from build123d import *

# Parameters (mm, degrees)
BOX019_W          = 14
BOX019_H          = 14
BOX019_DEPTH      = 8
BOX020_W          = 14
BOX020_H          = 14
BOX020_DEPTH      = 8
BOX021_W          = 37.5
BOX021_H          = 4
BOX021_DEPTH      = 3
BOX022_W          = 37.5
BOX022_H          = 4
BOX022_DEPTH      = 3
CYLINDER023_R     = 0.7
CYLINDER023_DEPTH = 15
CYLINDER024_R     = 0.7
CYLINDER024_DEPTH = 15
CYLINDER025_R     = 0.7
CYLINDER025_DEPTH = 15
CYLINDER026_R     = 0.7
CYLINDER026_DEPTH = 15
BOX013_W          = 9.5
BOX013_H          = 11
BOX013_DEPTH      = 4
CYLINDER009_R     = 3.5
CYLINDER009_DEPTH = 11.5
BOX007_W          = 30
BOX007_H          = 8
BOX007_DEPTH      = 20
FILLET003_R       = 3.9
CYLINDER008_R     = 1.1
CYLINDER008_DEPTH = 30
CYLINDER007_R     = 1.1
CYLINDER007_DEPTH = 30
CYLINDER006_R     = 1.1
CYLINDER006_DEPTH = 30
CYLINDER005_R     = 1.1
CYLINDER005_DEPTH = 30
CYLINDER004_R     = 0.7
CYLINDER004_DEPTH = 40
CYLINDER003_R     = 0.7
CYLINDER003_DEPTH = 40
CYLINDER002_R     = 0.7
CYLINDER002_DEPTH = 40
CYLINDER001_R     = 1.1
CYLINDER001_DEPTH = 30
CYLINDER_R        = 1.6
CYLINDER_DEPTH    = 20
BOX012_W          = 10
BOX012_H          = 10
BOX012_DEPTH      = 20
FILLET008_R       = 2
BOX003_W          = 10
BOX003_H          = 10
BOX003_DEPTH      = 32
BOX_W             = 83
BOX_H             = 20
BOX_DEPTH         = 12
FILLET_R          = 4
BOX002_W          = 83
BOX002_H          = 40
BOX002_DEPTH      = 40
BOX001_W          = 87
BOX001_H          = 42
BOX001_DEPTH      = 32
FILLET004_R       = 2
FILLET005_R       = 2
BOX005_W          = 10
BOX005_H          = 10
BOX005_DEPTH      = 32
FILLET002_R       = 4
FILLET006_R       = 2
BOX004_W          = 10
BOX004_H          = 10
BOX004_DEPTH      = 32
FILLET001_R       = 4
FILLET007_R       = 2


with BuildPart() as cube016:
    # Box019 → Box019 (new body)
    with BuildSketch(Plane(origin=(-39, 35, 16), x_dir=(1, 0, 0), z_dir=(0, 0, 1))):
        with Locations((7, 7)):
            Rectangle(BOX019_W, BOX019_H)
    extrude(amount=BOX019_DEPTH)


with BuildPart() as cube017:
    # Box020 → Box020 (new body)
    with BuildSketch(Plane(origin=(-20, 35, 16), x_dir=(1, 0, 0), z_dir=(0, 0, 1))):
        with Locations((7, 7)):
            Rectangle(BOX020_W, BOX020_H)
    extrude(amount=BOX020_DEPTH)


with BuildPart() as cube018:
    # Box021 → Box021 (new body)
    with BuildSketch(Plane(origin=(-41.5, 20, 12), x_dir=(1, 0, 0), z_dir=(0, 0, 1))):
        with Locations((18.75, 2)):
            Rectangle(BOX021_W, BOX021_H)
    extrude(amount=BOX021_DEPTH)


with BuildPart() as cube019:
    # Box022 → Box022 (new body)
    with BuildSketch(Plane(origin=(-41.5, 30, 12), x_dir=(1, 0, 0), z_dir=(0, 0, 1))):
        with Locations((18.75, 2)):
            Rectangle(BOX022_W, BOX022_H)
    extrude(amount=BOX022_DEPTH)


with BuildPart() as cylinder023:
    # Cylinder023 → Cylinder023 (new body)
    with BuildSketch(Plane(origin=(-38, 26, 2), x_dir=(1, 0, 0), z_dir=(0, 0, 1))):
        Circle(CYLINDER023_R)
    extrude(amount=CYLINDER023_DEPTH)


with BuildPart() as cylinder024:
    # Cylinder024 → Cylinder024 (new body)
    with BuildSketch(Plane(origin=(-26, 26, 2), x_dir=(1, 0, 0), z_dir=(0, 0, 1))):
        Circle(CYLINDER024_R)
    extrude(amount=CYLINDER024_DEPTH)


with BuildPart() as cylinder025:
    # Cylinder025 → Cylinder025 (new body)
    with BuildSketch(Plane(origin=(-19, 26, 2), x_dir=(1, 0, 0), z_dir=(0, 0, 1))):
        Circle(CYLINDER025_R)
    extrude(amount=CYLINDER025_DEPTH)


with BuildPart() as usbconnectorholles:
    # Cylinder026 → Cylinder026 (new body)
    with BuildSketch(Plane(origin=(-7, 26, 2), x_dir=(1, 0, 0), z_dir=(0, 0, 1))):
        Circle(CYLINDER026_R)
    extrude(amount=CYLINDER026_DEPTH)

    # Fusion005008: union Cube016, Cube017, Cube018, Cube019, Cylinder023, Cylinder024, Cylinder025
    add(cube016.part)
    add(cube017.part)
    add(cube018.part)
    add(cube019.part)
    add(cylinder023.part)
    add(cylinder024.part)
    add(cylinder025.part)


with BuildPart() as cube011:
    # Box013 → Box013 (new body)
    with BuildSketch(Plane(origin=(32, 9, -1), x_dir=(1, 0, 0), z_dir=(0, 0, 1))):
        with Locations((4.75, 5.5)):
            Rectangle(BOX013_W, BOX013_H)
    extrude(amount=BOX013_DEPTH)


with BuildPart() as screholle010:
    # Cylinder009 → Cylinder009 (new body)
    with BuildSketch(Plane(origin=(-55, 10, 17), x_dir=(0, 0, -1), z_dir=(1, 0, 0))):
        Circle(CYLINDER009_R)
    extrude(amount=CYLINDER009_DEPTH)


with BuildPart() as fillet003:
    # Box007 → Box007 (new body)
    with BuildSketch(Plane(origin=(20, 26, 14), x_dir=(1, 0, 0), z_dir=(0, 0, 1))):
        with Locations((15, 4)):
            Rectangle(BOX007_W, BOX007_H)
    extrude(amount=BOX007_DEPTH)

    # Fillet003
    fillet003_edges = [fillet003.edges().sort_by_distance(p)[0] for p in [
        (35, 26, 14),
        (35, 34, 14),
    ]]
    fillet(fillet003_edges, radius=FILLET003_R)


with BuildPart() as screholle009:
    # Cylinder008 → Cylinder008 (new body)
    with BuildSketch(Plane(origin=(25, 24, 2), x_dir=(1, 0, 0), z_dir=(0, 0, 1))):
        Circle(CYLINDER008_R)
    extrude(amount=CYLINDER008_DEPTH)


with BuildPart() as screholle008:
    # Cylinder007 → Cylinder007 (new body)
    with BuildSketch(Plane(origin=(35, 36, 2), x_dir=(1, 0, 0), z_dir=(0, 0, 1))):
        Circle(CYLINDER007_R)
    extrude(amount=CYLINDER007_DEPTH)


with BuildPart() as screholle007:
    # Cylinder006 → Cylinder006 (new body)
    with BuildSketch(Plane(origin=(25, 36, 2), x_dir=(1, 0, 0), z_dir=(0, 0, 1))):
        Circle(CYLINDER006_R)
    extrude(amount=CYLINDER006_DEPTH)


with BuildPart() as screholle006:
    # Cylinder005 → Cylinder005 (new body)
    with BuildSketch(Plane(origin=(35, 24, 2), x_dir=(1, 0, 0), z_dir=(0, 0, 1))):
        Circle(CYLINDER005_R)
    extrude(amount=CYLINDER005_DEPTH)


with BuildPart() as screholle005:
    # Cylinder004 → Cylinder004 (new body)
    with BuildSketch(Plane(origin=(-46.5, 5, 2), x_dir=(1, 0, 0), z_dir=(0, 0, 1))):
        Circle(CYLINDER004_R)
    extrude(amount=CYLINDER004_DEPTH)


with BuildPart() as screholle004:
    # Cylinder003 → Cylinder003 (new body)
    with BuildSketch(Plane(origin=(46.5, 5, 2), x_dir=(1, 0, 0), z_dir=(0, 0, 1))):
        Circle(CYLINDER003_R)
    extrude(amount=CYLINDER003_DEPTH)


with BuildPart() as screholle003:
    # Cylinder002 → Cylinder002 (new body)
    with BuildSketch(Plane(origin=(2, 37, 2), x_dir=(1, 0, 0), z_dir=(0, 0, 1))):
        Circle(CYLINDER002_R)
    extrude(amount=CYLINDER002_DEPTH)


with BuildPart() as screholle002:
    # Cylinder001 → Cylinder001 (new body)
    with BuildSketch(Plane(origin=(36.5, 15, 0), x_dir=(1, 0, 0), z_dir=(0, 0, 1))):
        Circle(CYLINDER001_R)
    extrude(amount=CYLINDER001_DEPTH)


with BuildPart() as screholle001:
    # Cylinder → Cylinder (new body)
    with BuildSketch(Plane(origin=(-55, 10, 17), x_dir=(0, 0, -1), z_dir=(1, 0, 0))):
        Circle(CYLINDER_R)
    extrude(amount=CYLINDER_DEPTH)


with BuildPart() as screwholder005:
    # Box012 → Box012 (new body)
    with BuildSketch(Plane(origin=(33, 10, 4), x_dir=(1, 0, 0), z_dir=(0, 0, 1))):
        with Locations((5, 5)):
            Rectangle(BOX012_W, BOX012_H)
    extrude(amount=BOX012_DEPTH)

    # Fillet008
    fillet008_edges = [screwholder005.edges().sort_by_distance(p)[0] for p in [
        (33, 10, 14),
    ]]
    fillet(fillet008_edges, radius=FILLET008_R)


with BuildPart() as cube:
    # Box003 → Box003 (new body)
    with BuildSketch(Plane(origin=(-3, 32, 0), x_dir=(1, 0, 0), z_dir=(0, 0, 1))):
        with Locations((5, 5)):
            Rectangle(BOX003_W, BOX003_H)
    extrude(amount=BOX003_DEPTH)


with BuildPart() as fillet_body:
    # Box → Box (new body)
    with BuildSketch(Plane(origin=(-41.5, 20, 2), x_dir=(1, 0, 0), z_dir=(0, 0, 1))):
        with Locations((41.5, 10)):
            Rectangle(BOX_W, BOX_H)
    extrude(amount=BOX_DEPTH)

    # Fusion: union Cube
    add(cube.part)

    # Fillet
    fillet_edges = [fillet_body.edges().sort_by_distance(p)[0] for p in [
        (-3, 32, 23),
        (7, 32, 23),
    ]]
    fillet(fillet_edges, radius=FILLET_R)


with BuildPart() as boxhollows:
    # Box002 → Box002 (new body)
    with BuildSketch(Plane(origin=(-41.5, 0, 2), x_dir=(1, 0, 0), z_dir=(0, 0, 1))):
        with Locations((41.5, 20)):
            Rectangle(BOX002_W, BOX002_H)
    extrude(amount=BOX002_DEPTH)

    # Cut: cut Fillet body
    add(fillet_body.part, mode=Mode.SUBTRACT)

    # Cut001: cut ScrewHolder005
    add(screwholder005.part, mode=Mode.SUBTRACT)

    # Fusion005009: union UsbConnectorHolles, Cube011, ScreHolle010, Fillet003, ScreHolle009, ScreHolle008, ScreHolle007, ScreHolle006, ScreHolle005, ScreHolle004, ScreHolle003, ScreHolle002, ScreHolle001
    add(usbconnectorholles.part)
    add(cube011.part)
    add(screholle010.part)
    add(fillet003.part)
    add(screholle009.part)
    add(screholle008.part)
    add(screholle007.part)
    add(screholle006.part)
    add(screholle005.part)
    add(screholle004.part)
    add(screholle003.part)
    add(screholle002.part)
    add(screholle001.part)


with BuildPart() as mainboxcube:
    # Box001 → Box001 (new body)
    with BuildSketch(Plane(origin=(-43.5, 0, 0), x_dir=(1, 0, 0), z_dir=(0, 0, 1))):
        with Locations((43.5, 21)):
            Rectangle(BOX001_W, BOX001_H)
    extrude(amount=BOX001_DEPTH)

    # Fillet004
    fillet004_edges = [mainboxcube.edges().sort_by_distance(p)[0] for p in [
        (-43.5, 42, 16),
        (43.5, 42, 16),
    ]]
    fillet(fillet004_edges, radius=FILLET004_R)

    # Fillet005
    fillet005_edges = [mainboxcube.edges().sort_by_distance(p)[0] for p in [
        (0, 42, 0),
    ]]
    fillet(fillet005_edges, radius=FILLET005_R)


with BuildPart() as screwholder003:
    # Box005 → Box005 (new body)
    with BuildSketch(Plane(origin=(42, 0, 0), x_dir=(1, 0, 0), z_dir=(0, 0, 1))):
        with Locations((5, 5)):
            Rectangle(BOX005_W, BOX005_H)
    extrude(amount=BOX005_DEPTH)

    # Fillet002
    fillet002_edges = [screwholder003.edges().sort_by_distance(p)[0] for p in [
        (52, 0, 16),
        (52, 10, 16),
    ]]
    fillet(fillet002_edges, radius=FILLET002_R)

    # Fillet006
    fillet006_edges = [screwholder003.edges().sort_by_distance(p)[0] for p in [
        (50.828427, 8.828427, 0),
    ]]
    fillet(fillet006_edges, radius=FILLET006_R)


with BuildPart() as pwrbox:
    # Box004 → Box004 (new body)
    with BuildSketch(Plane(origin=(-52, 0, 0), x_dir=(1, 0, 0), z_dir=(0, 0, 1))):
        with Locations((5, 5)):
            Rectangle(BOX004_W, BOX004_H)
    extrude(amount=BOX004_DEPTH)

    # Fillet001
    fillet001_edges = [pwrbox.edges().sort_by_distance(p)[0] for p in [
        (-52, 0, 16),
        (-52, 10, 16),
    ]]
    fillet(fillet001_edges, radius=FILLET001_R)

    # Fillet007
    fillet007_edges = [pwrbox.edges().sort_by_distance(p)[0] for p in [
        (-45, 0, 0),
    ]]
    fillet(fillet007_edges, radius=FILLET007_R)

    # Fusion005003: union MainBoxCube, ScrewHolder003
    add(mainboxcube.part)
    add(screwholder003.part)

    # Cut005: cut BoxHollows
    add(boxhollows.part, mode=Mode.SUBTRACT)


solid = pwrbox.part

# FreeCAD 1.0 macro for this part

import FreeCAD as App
import Part
import Sketcher
from FreeCAD import Vector
Q = App.Units.Quantity


def edges_at(feature, points):
    """Names of the edges that pass closest to the given points."""
    edges = feature.Shape.Edges
    near = lambda p: min(range(len(edges)), key=lambda i: edges[i].distToShape(Part.Vertex(*p))[0])
    return sorted({f"Edge{near(p) + 1}" for p in points})


def add_polygon(sketch, points):
    """Adds a closed chain of lines whose ends are joined by coincident constraints."""
    first, n = sketch.GeometryCount, len(points)
    for a, b in zip(points, points[1:] + points[:1]):
        sketch.addGeometry(Part.LineSegment(App.Vector(*a, 0), App.Vector(*b, 0)), False)
    for i in range(n):
        sketch.addConstraint(Sketcher.Constraint("Coincident", first + i, 2, first + (i + 1) % n, 1))

doc = App.newDocument("Part")
body = doc.addObject("PartDesign::Body", "Body")

# Sketch on XY plane
sketch1 = body.newObject("Sketcher::SketchObject", "Sketch")
sketch1.AttachmentSupport = (doc.getObject("XY_Plane"), [""])
sketch1.MapMode = "FlatFace"
sketch1.AttachmentOffset = App.Placement(Vector(0, 0, 16), App.Rotation())
add_polygon(sketch1, [(-39, 49), (-39, 35), (-25, 35), (-25, 49)])  # lines 0-3
sketch1.addConstraint([
    Sketcher.Constraint("Vertical", 0),
    Sketcher.Constraint("Horizontal", 1),
    Sketcher.Constraint("Vertical", 2),
    Sketcher.Constraint("Horizontal", 3),
    Sketcher.Constraint("Equal", 3, 0),
    Sketcher.Constraint("DistanceX", 1, 1, 1, 2, Q("14 mm")),
    Sketcher.Constraint("DistanceX", 0, 2, -1, 1, Q("39 mm")),
    Sketcher.Constraint("DistanceY", -1, 1, 0, 2, Q("35 mm")),
])
pad1 = body.newObject("PartDesign::Pad", "Pad")
pad1.Profile = sketch1
pad1.Length = 8
body2 = doc.addObject("PartDesign::Body", "Body001")

# Sketch on XY plane
sketch2 = body2.newObject("Sketcher::SketchObject", "Sketch001")
sketch2.AttachmentSupport = (doc.getObject("XY_Plane001"), [""])
sketch2.MapMode = "FlatFace"
sketch2.AttachmentOffset = App.Placement(Vector(0, 0, 16), App.Rotation())
add_polygon(sketch2, [(-20, 49), (-20, 35), (-6, 35), (-6, 49)])  # lines 0-3
sketch2.addConstraint([
    Sketcher.Constraint("Vertical", 0),
    Sketcher.Constraint("Horizontal", 1),
    Sketcher.Constraint("Vertical", 2),
    Sketcher.Constraint("Horizontal", 3),
    Sketcher.Constraint("Equal", 3, 0),
    Sketcher.Constraint("DistanceX", 1, 1, 1, 2, Q("14 mm")),
    Sketcher.Constraint("DistanceX", 0, 2, -1, 1, Q("20 mm")),
    Sketcher.Constraint("DistanceY", -1, 1, 0, 2, Q("35 mm")),
])
pad2 = body2.newObject("PartDesign::Pad", "Pad001")
pad2.Profile = sketch2
pad2.Length = 8
body3 = doc.addObject("PartDesign::Body", "Body002")

# Sketch on XY plane
sketch3 = body3.newObject("Sketcher::SketchObject", "Sketch002")
sketch3.AttachmentSupport = (doc.getObject("XY_Plane002"), [""])
sketch3.MapMode = "FlatFace"
sketch3.AttachmentOffset = App.Placement(Vector(0, 0, 12), App.Rotation())
add_polygon(sketch3, [(-41.5, 24), (-41.5, 20), (-4, 20), (-4, 24)])  # lines 0-3
sketch3.addConstraint([
    Sketcher.Constraint("Vertical", 0),
    Sketcher.Constraint("Horizontal", 1),
    Sketcher.Constraint("Vertical", 2),
    Sketcher.Constraint("Horizontal", 3),
    Sketcher.Constraint("DistanceY", 0, 2, 0, 1, Q("4 mm")),
    Sketcher.Constraint("DistanceX", 1, 1, 1, 2, Q("37.5 mm")),
    Sketcher.Constraint("DistanceY", -1, 1, 0, 2, Q("20 mm")),
    Sketcher.Constraint("DistanceX", 1, 2, -1, 1, Q("4 mm")),
])
pad3 = body3.newObject("PartDesign::Pad", "Pad002")
pad3.Profile = sketch3
pad3.Length = 3
body4 = doc.addObject("PartDesign::Body", "Body003")

# Sketch on XY plane
sketch4 = body4.newObject("Sketcher::SketchObject", "Sketch003")
sketch4.AttachmentSupport = (doc.getObject("XY_Plane003"), [""])
sketch4.MapMode = "FlatFace"
sketch4.AttachmentOffset = App.Placement(Vector(0, 0, 12), App.Rotation())
add_polygon(sketch4, [(-41.5, 34), (-41.5, 30), (-4, 30), (-4, 34)])  # lines 0-3
sketch4.addConstraint([
    Sketcher.Constraint("Vertical", 0),
    Sketcher.Constraint("Horizontal", 1),
    Sketcher.Constraint("Vertical", 2),
    Sketcher.Constraint("Horizontal", 3),
    Sketcher.Constraint("DistanceY", 0, 2, 0, 1, Q("4 mm")),
    Sketcher.Constraint("DistanceX", 1, 1, 1, 2, Q("37.5 mm")),
    Sketcher.Constraint("DistanceY", -1, 1, 0, 2, Q("30 mm")),
    Sketcher.Constraint("DistanceX", 1, 2, -1, 1, Q("4 mm")),
])
pad4 = body4.newObject("PartDesign::Pad", "Pad003")
pad4.Profile = sketch4
pad4.Length = 3
body5 = doc.addObject("PartDesign::Body", "Body004")

# Sketch on XY plane
sketch5 = body5.newObject("Sketcher::SketchObject", "Sketch004")
sketch5.AttachmentSupport = (doc.getObject("XY_Plane004"), [""])
sketch5.MapMode = "FlatFace"
sketch5.AttachmentOffset = App.Placement(Vector(0, 0, 2), App.Rotation())
sketch5.addGeometry(Part.Circle(Vector(-38, 26, 0), Vector(0, 0, 1), 0.7), False)
sketch5.addConstraint([
    Sketcher.Constraint("Diameter", 0, Q("1.4 mm")),
    Sketcher.Constraint("DistanceX", 0, 3, -1, 1, Q("38 mm")),
    Sketcher.Constraint("DistanceY", -1, 1, 0, 3, Q("26 mm")),
])
pad5 = body5.newObject("PartDesign::Pad", "Pad004")
pad5.Profile = sketch5
pad5.Length = 15
body6 = doc.addObject("PartDesign::Body", "Body005")

# Sketch on XY plane
sketch6 = body6.newObject("Sketcher::SketchObject", "Sketch005")
sketch6.AttachmentSupport = (doc.getObject("XY_Plane005"), [""])
sketch6.MapMode = "FlatFace"
sketch6.AttachmentOffset = App.Placement(Vector(0, 0, 2), App.Rotation())
sketch6.addGeometry(Part.Circle(Vector(-26, 26, 0), Vector(0, 0, 1), 0.7), False)
sketch6.addConstraint([
    Sketcher.Constraint("Diameter", 0, Q("1.4 mm")),
    Sketcher.Constraint("DistanceX", 0, 3, -1, 1, Q("26 mm")),
    Sketcher.Constraint("DistanceY", -1, 1, 0, 3, Q("26 mm")),
])
pad6 = body6.newObject("PartDesign::Pad", "Pad005")
pad6.Profile = sketch6
pad6.Length = 15
body7 = doc.addObject("PartDesign::Body", "Body006")

# Sketch on XY plane
sketch7 = body7.newObject("Sketcher::SketchObject", "Sketch006")
sketch7.AttachmentSupport = (doc.getObject("XY_Plane006"), [""])
sketch7.MapMode = "FlatFace"
sketch7.AttachmentOffset = App.Placement(Vector(0, 0, 2), App.Rotation())
sketch7.addGeometry(Part.Circle(Vector(-19, 26, 0), Vector(0, 0, 1), 0.7), False)
sketch7.addConstraint([
    Sketcher.Constraint("Diameter", 0, Q("1.4 mm")),
    Sketcher.Constraint("DistanceX", 0, 3, -1, 1, Q("19 mm")),
    Sketcher.Constraint("DistanceY", -1, 1, 0, 3, Q("26 mm")),
])
pad7 = body7.newObject("PartDesign::Pad", "Pad006")
pad7.Profile = sketch7
pad7.Length = 15
body8 = doc.addObject("PartDesign::Body", "Body007")
body8.AllowCompound = True

# Sketch on XY plane
sketch8 = body8.newObject("Sketcher::SketchObject", "Sketch007")
sketch8.AttachmentSupport = (doc.getObject("XY_Plane007"), [""])
sketch8.MapMode = "FlatFace"
sketch8.AttachmentOffset = App.Placement(Vector(0, 0, 2), App.Rotation())
sketch8.addGeometry(Part.Circle(Vector(-7, 26, 0), Vector(0, 0, 1), 0.7), False)
sketch8.addConstraint([
    Sketcher.Constraint("Diameter", 0, Q("1.4 mm")),
    Sketcher.Constraint("DistanceX", 0, 3, -1, 1, Q("7 mm")),
    Sketcher.Constraint("DistanceY", -1, 1, 0, 3, Q("26 mm")),
])
pad8 = body8.newObject("PartDesign::Pad", "Pad007")
pad8.Profile = sketch8
pad8.Length = 15
doc.recompute()

boolean = body8.newObject("PartDesign::Boolean", "Boolean")
boolean.Type = "Fuse"
boolean.addObjects([body])
doc.recompute()

boolean2 = body8.newObject("PartDesign::Boolean", "Boolean001")
boolean2.Type = "Fuse"
boolean2.addObjects([body2])
doc.recompute()

boolean3 = body8.newObject("PartDesign::Boolean", "Boolean002")
boolean3.Type = "Fuse"
boolean3.addObjects([body3])
doc.recompute()

boolean4 = body8.newObject("PartDesign::Boolean", "Boolean003")
boolean4.Type = "Fuse"
boolean4.addObjects([body4])
doc.recompute()

boolean5 = body8.newObject("PartDesign::Boolean", "Boolean004")
boolean5.Type = "Fuse"
boolean5.addObjects([body5])
doc.recompute()

boolean6 = body8.newObject("PartDesign::Boolean", "Boolean005")
boolean6.Type = "Fuse"
boolean6.addObjects([body6])
doc.recompute()

boolean7 = body8.newObject("PartDesign::Boolean", "Boolean006")
boolean7.Type = "Fuse"
boolean7.addObjects([body7])
body9 = doc.addObject("PartDesign::Body", "Body008")

# Sketch on XY plane
sketch9 = body9.newObject("Sketcher::SketchObject", "Sketch008")
sketch9.AttachmentSupport = (doc.getObject("XY_Plane008"), [""])
sketch9.MapMode = "FlatFace"
sketch9.AttachmentOffset = App.Placement(Vector(0, 0, -1), App.Rotation())
add_polygon(sketch9, [(32, 20), (32, 9), (42, 9), (42, 20)])  # lines 0-3
sketch9.addConstraint([
    Sketcher.Constraint("Vertical", 0),
    Sketcher.Constraint("Horizontal", 1),
    Sketcher.Constraint("Vertical", 2),
    Sketcher.Constraint("Horizontal", 3),
    Sketcher.Constraint("DistanceY", 0, 2, 0, 1, Q("11 mm")),
    Sketcher.Constraint("DistanceX", 1, 1, 1, 2, Q("9.5 mm")),
    Sketcher.Constraint("DistanceX", -1, 1, 0, 2, Q("32 mm")),
    Sketcher.Constraint("DistanceY", -1, 1, 0, 2, Q("9 mm")),
])
pad9 = body9.newObject("PartDesign::Pad", "Pad008")
pad9.Profile = sketch9
pad9.Length = 4
body10 = doc.addObject("PartDesign::Body", "Body009")

# Sketch on YZ plane
sketch10 = body10.newObject("Sketcher::SketchObject", "Sketch009")
sketch10.AttachmentSupport = (doc.getObject("YZ_Plane009"), [""])
sketch10.MapMode = "FlatFace"
sketch10.AttachmentOffset = App.Placement(Vector(0, 0, -55), App.Rotation())
sketch10.addGeometry(Part.Circle(Vector(10, 17, 0), Vector(0, 0, 1), 3.5), False)
sketch10.addConstraint([
    Sketcher.Constraint("Diameter", 0, Q("7 mm")),
    Sketcher.Constraint("DistanceX", -1, 1, 0, 3, Q("10 mm")),
    Sketcher.Constraint("DistanceY", -1, 1, 0, 3, Q("17 mm")),
])
pad10 = body10.newObject("PartDesign::Pad", "Pad009")
pad10.Profile = sketch10
pad10.Length = 11.5
body11 = doc.addObject("PartDesign::Body", "Body010")

# Sketch on XY plane
sketch11 = body11.newObject("Sketcher::SketchObject", "Sketch010")
sketch11.AttachmentSupport = (doc.getObject("XY_Plane010"), [""])
sketch11.MapMode = "FlatFace"
sketch11.AttachmentOffset = App.Placement(Vector(0, 0, 14), App.Rotation())
add_polygon(sketch11, [(20, 34), (20, 26), (50, 26), (50, 34)])  # lines 0-3
sketch11.addConstraint([
    Sketcher.Constraint("Vertical", 0),
    Sketcher.Constraint("Horizontal", 1),
    Sketcher.Constraint("Vertical", 2),
    Sketcher.Constraint("Horizontal", 3),
    Sketcher.Constraint("DistanceX", 1, 1, 1, 2, Q("30 mm")),
    Sketcher.Constraint("DistanceY", 0, 2, 0, 1, Q("8 mm")),
    Sketcher.Constraint("DistanceX", -1, 1, 0, 2, Q("20 mm")),
    Sketcher.Constraint("DistanceY", -1, 1, 0, 2, Q("26 mm")),
])
pad11 = body11.newObject("PartDesign::Pad", "Pad010")
pad11.Profile = sketch11
pad11.Length = 20
doc.recompute()

fillet = body11.newObject("PartDesign::Fillet", "Fillet")
fillet.Base = (pad11, edges_at(pad11, [(35, 26, 14), (35, 34, 14)]))
fillet.Radius = 3.9
body12 = doc.addObject("PartDesign::Body", "Body011")

# Sketch on XY plane
sketch12 = body12.newObject("Sketcher::SketchObject", "Sketch011")
sketch12.AttachmentSupport = (doc.getObject("XY_Plane011"), [""])
sketch12.MapMode = "FlatFace"
sketch12.AttachmentOffset = App.Placement(Vector(0, 0, 2), App.Rotation())
sketch12.addGeometry(Part.Circle(Vector(25, 24, 0), Vector(0, 0, 1), 1.1), False)
sketch12.addConstraint([
    Sketcher.Constraint("Diameter", 0, Q("2.2 mm")),
    Sketcher.Constraint("DistanceX", -1, 1, 0, 3, Q("25 mm")),
    Sketcher.Constraint("DistanceY", -1, 1, 0, 3, Q("24 mm")),
])
pad12 = body12.newObject("PartDesign::Pad", "Pad011")
pad12.Profile = sketch12
pad12.Length = 30
body13 = doc.addObject("PartDesign::Body", "Body012")

# Sketch on XY plane
sketch13 = body13.newObject("Sketcher::SketchObject", "Sketch012")
sketch13.AttachmentSupport = (doc.getObject("XY_Plane012"), [""])
sketch13.MapMode = "FlatFace"
sketch13.AttachmentOffset = App.Placement(Vector(0, 0, 2), App.Rotation())
sketch13.addGeometry(Part.Circle(Vector(35, 36, 0), Vector(0, 0, 1), 1.1), False)
sketch13.addConstraint([
    Sketcher.Constraint("Diameter", 0, Q("2.2 mm")),
    Sketcher.Constraint("DistanceX", -1, 1, 0, 3, Q("35 mm")),
    Sketcher.Constraint("DistanceY", -1, 1, 0, 3, Q("36 mm")),
])
pad13 = body13.newObject("PartDesign::Pad", "Pad012")
pad13.Profile = sketch13
pad13.Length = 30
body14 = doc.addObject("PartDesign::Body", "Body013")

# Sketch on XY plane
sketch14 = body14.newObject("Sketcher::SketchObject", "Sketch013")
sketch14.AttachmentSupport = (doc.getObject("XY_Plane013"), [""])
sketch14.MapMode = "FlatFace"
sketch14.AttachmentOffset = App.Placement(Vector(0, 0, 2), App.Rotation())
sketch14.addGeometry(Part.Circle(Vector(25, 36, 0), Vector(0, 0, 1), 1.1), False)
sketch14.addConstraint([
    Sketcher.Constraint("Diameter", 0, Q("2.2 mm")),
    Sketcher.Constraint("DistanceX", -1, 1, 0, 3, Q("25 mm")),
    Sketcher.Constraint("DistanceY", -1, 1, 0, 3, Q("36 mm")),
])
pad14 = body14.newObject("PartDesign::Pad", "Pad013")
pad14.Profile = sketch14
pad14.Length = 30
body15 = doc.addObject("PartDesign::Body", "Body014")

# Sketch on XY plane
sketch15 = body15.newObject("Sketcher::SketchObject", "Sketch014")
sketch15.AttachmentSupport = (doc.getObject("XY_Plane014"), [""])
sketch15.MapMode = "FlatFace"
sketch15.AttachmentOffset = App.Placement(Vector(0, 0, 2), App.Rotation())
sketch15.addGeometry(Part.Circle(Vector(35, 24, 0), Vector(0, 0, 1), 1.1), False)
sketch15.addConstraint([
    Sketcher.Constraint("Diameter", 0, Q("2.2 mm")),
    Sketcher.Constraint("DistanceX", -1, 1, 0, 3, Q("35 mm")),
    Sketcher.Constraint("DistanceY", -1, 1, 0, 3, Q("24 mm")),
])
pad15 = body15.newObject("PartDesign::Pad", "Pad014")
pad15.Profile = sketch15
pad15.Length = 30
body16 = doc.addObject("PartDesign::Body", "Body015")

# Sketch on XY plane
sketch16 = body16.newObject("Sketcher::SketchObject", "Sketch015")
sketch16.AttachmentSupport = (doc.getObject("XY_Plane015"), [""])
sketch16.MapMode = "FlatFace"
sketch16.AttachmentOffset = App.Placement(Vector(0, 0, 2), App.Rotation())
sketch16.addGeometry(Part.Circle(Vector(-46.5, 5, 0), Vector(0, 0, 1), 0.7), False)
sketch16.addConstraint([
    Sketcher.Constraint("Diameter", 0, Q("1.4 mm")),
    Sketcher.Constraint("DistanceY", -1, 1, 0, 3, Q("5 mm")),
    Sketcher.Constraint("DistanceX", 0, 3, -1, 1, Q("46.5 mm")),
])
pad16 = body16.newObject("PartDesign::Pad", "Pad015")
pad16.Profile = sketch16
pad16.Length = 40
body17 = doc.addObject("PartDesign::Body", "Body016")

# Sketch on XY plane
sketch17 = body17.newObject("Sketcher::SketchObject", "Sketch016")
sketch17.AttachmentSupport = (doc.getObject("XY_Plane016"), [""])
sketch17.MapMode = "FlatFace"
sketch17.AttachmentOffset = App.Placement(Vector(0, 0, 2), App.Rotation())
sketch17.addGeometry(Part.Circle(Vector(46.5, 5, 0), Vector(0, 0, 1), 0.7), False)
sketch17.addConstraint([
    Sketcher.Constraint("Diameter", 0, Q("1.4 mm")),
    Sketcher.Constraint("DistanceY", -1, 1, 0, 3, Q("5 mm")),
    Sketcher.Constraint("DistanceX", -1, 1, 0, 3, Q("46.5 mm")),
])
pad17 = body17.newObject("PartDesign::Pad", "Pad016")
pad17.Profile = sketch17
pad17.Length = 40
body18 = doc.addObject("PartDesign::Body", "Body017")

# Sketch on XY plane
sketch18 = body18.newObject("Sketcher::SketchObject", "Sketch017")
sketch18.AttachmentSupport = (doc.getObject("XY_Plane017"), [""])
sketch18.MapMode = "FlatFace"
sketch18.AttachmentOffset = App.Placement(Vector(0, 0, 2), App.Rotation())
sketch18.addGeometry(Part.Circle(Vector(2, 37, 0), Vector(0, 0, 1), 0.7), False)
sketch18.addConstraint([
    Sketcher.Constraint("Diameter", 0, Q("1.4 mm")),
    Sketcher.Constraint("DistanceX", -1, 1, 0, 3, Q("2 mm")),
    Sketcher.Constraint("DistanceY", -1, 1, 0, 3, Q("37 mm")),
])
pad18 = body18.newObject("PartDesign::Pad", "Pad017")
pad18.Profile = sketch18
pad18.Length = 40
body19 = doc.addObject("PartDesign::Body", "Body018")

# Sketch on XY plane
sketch19 = body19.newObject("Sketcher::SketchObject", "Sketch018")
sketch19.AttachmentSupport = (doc.getObject("XY_Plane018"), [""])
sketch19.MapMode = "FlatFace"
sketch19.addGeometry(Part.Circle(Vector(36.5, 15, 0), Vector(0, 0, 1), 1.1), False)
sketch19.addConstraint([
    Sketcher.Constraint("Diameter", 0, Q("2.2 mm")),
    Sketcher.Constraint("DistanceY", -1, 1, 0, 3, Q("15 mm")),
    Sketcher.Constraint("DistanceX", -1, 1, 0, 3, Q("36.5 mm")),
])
pad19 = body19.newObject("PartDesign::Pad", "Pad018")
pad19.Profile = sketch19
pad19.Length = 30
body20 = doc.addObject("PartDesign::Body", "Body019")

# Sketch on YZ plane
sketch20 = body20.newObject("Sketcher::SketchObject", "Sketch019")
sketch20.AttachmentSupport = (doc.getObject("YZ_Plane019"), [""])
sketch20.MapMode = "FlatFace"
sketch20.AttachmentOffset = App.Placement(Vector(0, 0, -55), App.Rotation())
sketch20.addGeometry(Part.Circle(Vector(10, 17, 0), Vector(0, 0, 1), 1.6), False)
sketch20.addConstraint([
    Sketcher.Constraint("Diameter", 0, Q("3.2 mm")),
    Sketcher.Constraint("DistanceX", -1, 1, 0, 3, Q("10 mm")),
    Sketcher.Constraint("DistanceY", -1, 1, 0, 3, Q("17 mm")),
])
pad20 = body20.newObject("PartDesign::Pad", "Pad019")
pad20.Profile = sketch20
pad20.Length = 20
body21 = doc.addObject("PartDesign::Body", "Body020")

# Sketch on XY plane
sketch21 = body21.newObject("Sketcher::SketchObject", "Sketch020")
sketch21.AttachmentSupport = (doc.getObject("XY_Plane020"), [""])
sketch21.MapMode = "FlatFace"
sketch21.AttachmentOffset = App.Placement(Vector(0, 0, 4), App.Rotation())
add_polygon(sketch21, [(33, 20), (33, 10), (43, 10), (43, 20)])  # lines 0-3
sketch21.addConstraint([
    Sketcher.Constraint("Vertical", 0),
    Sketcher.Constraint("Horizontal", 1),
    Sketcher.Constraint("Vertical", 2),
    Sketcher.Constraint("Horizontal", 3),
    Sketcher.Constraint("Equal", 3, 0),
    Sketcher.Constraint("DistanceX", 1, 1, 1, 2, Q("10 mm")),
    Sketcher.Constraint("DistanceX", -1, 1, 0, 2, Q("33 mm")),
    Sketcher.Constraint("DistanceY", -1, 1, 0, 2, Q("10 mm")),
])
pad21 = body21.newObject("PartDesign::Pad", "Pad020")
pad21.Profile = sketch21
pad21.Length = 20
doc.recompute()

fillet2 = body21.newObject("PartDesign::Fillet", "Fillet001")
fillet2.Base = (pad21, edges_at(pad21, [(33, 10, 14)]))
fillet2.Radius = 2
body22 = doc.addObject("PartDesign::Body", "Body021")

# Sketch on XY plane
sketch22 = body22.newObject("Sketcher::SketchObject", "Sketch021")
sketch22.AttachmentSupport = (doc.getObject("XY_Plane021"), [""])
sketch22.MapMode = "FlatFace"
add_polygon(sketch22, [(-3, 42), (-3, 32), (7, 32), (7, 42)])  # lines 0-3
sketch22.addConstraint([
    Sketcher.Constraint("Vertical", 0),
    Sketcher.Constraint("Horizontal", 1),
    Sketcher.Constraint("Vertical", 2),
    Sketcher.Constraint("Horizontal", 3),
    Sketcher.Constraint("Equal", 3, 0),
    Sketcher.Constraint("DistanceX", 1, 1, 1, 2, Q("10 mm")),
    Sketcher.Constraint("DistanceX", 0, 2, -1, 1, Q("3 mm")),
    Sketcher.Constraint("DistanceY", -1, 1, 0, 2, Q("32 mm")),
])
pad22 = body22.newObject("PartDesign::Pad", "Pad021")
pad22.Profile = sketch22
pad22.Length = 32
body23 = doc.addObject("PartDesign::Body", "Body022")

# Sketch on XY plane
sketch23 = body23.newObject("Sketcher::SketchObject", "Sketch022")
sketch23.AttachmentSupport = (doc.getObject("XY_Plane022"), [""])
sketch23.MapMode = "FlatFace"
sketch23.AttachmentOffset = App.Placement(Vector(0, 0, 2), App.Rotation())
add_polygon(sketch23, [(-42, 40), (-42, 20), (42, 20), (42, 40)])  # lines 0-3
sketch23.addConstraint([
    Sketcher.Constraint("Vertical", 0),
    Sketcher.Constraint("Horizontal", 1),
    Sketcher.Constraint("Vertical", 2),
    Sketcher.Constraint("Horizontal", 3),
    Sketcher.Constraint("DistanceX", 1, 1, 1, 2, Q("83 mm")),
    Sketcher.Constraint("DistanceY", 0, 2, 0, 1, Q("20 mm")),
    Sketcher.Constraint("DistanceY", -1, 1, 0, 2, Q("20 mm")),
    Sketcher.Constraint("DistanceX", 0, 2, -1, 1, Q("41.5 mm")),
])
pad23 = body23.newObject("PartDesign::Pad", "Pad022")
pad23.Profile = sketch23
pad23.Length = 12
doc.recompute()

boolean8 = body23.newObject("PartDesign::Boolean", "Boolean007")
boolean8.Type = "Fuse"
boolean8.addObjects([body22])
doc.recompute()

fillet3 = body23.newObject("PartDesign::Fillet", "Fillet002")
fillet3.Base = (boolean8, edges_at(boolean8, [(-3, 32, 23), (7, 32, 23)]))
fillet3.Radius = 4
body24 = doc.addObject("PartDesign::Body", "Body023")
body24.AllowCompound = True

# Sketch on XY plane
sketch24 = body24.newObject("Sketcher::SketchObject", "Sketch023")
sketch24.AttachmentSupport = (doc.getObject("XY_Plane023"), [""])
sketch24.MapMode = "FlatFace"
sketch24.AttachmentOffset = App.Placement(Vector(0, 0, 2), App.Rotation())
add_polygon(sketch24, [(-42, 40), (-42, 0), (42, 0), (42, 40)])  # lines 0-3
sketch24.addConstraint([
    Sketcher.Constraint("Vertical", 0),
    Sketcher.Constraint("Horizontal", 1),
    Sketcher.Constraint("Vertical", 2),
    Sketcher.Constraint("Horizontal", 3),
    Sketcher.Constraint("Symmetric", 0, 2, 1, 2, -1, 1),
    Sketcher.Constraint("DistanceX", 1, 1, 1, 2, Q("83 mm")),
    Sketcher.Constraint("DistanceY", 0, 2, 0, 1, Q("40 mm")),
])
pad24 = body24.newObject("PartDesign::Pad", "Pad023")
pad24.Profile = sketch24
pad24.Length = 40
doc.recompute()

boolean9 = body24.newObject("PartDesign::Boolean", "Boolean008")
boolean9.Type = "Cut"
boolean9.addObjects([body23])
doc.recompute()

boolean10 = body24.newObject("PartDesign::Boolean", "Boolean009")
boolean10.Type = "Cut"
boolean10.addObjects([body21])
doc.recompute()

boolean11 = body24.newObject("PartDesign::Boolean", "Boolean010")
boolean11.Type = "Fuse"
boolean11.addObjects([body8])
doc.recompute()

boolean12 = body24.newObject("PartDesign::Boolean", "Boolean011")
boolean12.Type = "Fuse"
boolean12.addObjects([body9])
doc.recompute()

boolean13 = body24.newObject("PartDesign::Boolean", "Boolean012")
boolean13.Type = "Fuse"
boolean13.addObjects([body10])
doc.recompute()

boolean14 = body24.newObject("PartDesign::Boolean", "Boolean013")
boolean14.Type = "Fuse"
boolean14.addObjects([body11])
doc.recompute()

boolean15 = body24.newObject("PartDesign::Boolean", "Boolean014")
boolean15.Type = "Fuse"
boolean15.addObjects([body12])
doc.recompute()

boolean16 = body24.newObject("PartDesign::Boolean", "Boolean015")
boolean16.Type = "Fuse"
boolean16.addObjects([body13])
doc.recompute()

boolean17 = body24.newObject("PartDesign::Boolean", "Boolean016")
boolean17.Type = "Fuse"
boolean17.addObjects([body14])
doc.recompute()

boolean18 = body24.newObject("PartDesign::Boolean", "Boolean017")
boolean18.Type = "Fuse"
boolean18.addObjects([body15])
doc.recompute()

boolean19 = body24.newObject("PartDesign::Boolean", "Boolean018")
boolean19.Type = "Fuse"
boolean19.addObjects([body16])
doc.recompute()

boolean20 = body24.newObject("PartDesign::Boolean", "Boolean019")
boolean20.Type = "Fuse"
boolean20.addObjects([body17])
doc.recompute()

boolean21 = body24.newObject("PartDesign::Boolean", "Boolean020")
boolean21.Type = "Fuse"
boolean21.addObjects([body18])
doc.recompute()

boolean22 = body24.newObject("PartDesign::Boolean", "Boolean021")
boolean22.Type = "Fuse"
boolean22.addObjects([body19])
doc.recompute()

boolean23 = body24.newObject("PartDesign::Boolean", "Boolean022")
boolean23.Type = "Fuse"
boolean23.addObjects([body20])
body25 = doc.addObject("PartDesign::Body", "Body024")

# Sketch on XY plane
sketch25 = body25.newObject("Sketcher::SketchObject", "Sketch024")
sketch25.AttachmentSupport = (doc.getObject("XY_Plane024"), [""])
sketch25.MapMode = "FlatFace"
add_polygon(sketch25, [(-44, 42), (-44, 0), (44, 0), (44, 42)])  # lines 0-3
sketch25.addConstraint([
    Sketcher.Constraint("Vertical", 0),
    Sketcher.Constraint("Horizontal", 1),
    Sketcher.Constraint("Vertical", 2),
    Sketcher.Constraint("Horizontal", 3),
    Sketcher.Constraint("Symmetric", 0, 2, 1, 2, -1, 1),
    Sketcher.Constraint("DistanceX", 1, 1, 1, 2, Q("87 mm")),
    Sketcher.Constraint("DistanceY", 0, 2, 0, 1, Q("42 mm")),
])
pad25 = body25.newObject("PartDesign::Pad", "Pad024")
pad25.Profile = sketch25
pad25.Length = 32
doc.recompute()

fillet4 = body25.newObject("PartDesign::Fillet", "Fillet003")
fillet4.Base = (pad25, edges_at(pad25, [(-43.5, 42, 16), (43.5, 42, 16)]))
fillet4.Radius = 2
doc.recompute()

fillet5 = body25.newObject("PartDesign::Fillet", "Fillet004")
fillet5.Base = (fillet4, edges_at(fillet4, [(0, 42, 0)]))
fillet5.Radius = 2
body26 = doc.addObject("PartDesign::Body", "Body025")

# Sketch on XY plane
sketch26 = body26.newObject("Sketcher::SketchObject", "Sketch025")
sketch26.AttachmentSupport = (doc.getObject("XY_Plane025"), [""])
sketch26.MapMode = "FlatFace"
add_polygon(sketch26, [(42, 10), (42, 0), (52, 0), (52, 10)])  # lines 0-3
sketch26.addConstraint([
    Sketcher.Constraint("Vertical", 0),
    Sketcher.Constraint("Horizontal", 1),
    Sketcher.Constraint("Vertical", 2),
    Sketcher.Constraint("Horizontal", 3),
    Sketcher.Constraint("PointOnObject", 0, 2, -1),
    Sketcher.Constraint("Equal", 3, 0),
    Sketcher.Constraint("DistanceX", 1, 1, 1, 2, Q("10 mm")),
    Sketcher.Constraint("DistanceX", -1, 1, 0, 2, Q("42 mm")),
])
pad26 = body26.newObject("PartDesign::Pad", "Pad025")
pad26.Profile = sketch26
pad26.Length = 32
doc.recompute()

fillet6 = body26.newObject("PartDesign::Fillet", "Fillet005")
fillet6.Base = (pad26, edges_at(pad26, [(52, 0, 16), (52, 10, 16)]))
fillet6.Radius = 4
doc.recompute()

fillet7 = body26.newObject("PartDesign::Fillet", "Fillet006")
fillet7.Base = (fillet6, edges_at(fillet6, [(50.828, 8.828, 0)]))
fillet7.Radius = 2
body27 = doc.addObject("PartDesign::Body", "Body026")

# Sketch on XY plane
sketch27 = body27.newObject("Sketcher::SketchObject", "Sketch026")
sketch27.AttachmentSupport = (doc.getObject("XY_Plane026"), [""])
sketch27.MapMode = "FlatFace"
add_polygon(sketch27, [(-52, 10), (-52, 0), (-42, 0), (-42, 10)])  # lines 0-3
sketch27.addConstraint([
    Sketcher.Constraint("Vertical", 0),
    Sketcher.Constraint("Horizontal", 1),
    Sketcher.Constraint("Vertical", 2),
    Sketcher.Constraint("Horizontal", 3),
    Sketcher.Constraint("PointOnObject", 0, 2, -1),
    Sketcher.Constraint("Equal", 3, 0),
    Sketcher.Constraint("DistanceX", 1, 1, 1, 2, Q("10 mm")),
    Sketcher.Constraint("DistanceX", 0, 2, -1, 1, Q("52 mm")),
])
pad27 = body27.newObject("PartDesign::Pad", "Pad026")
pad27.Profile = sketch27
pad27.Length = 32
doc.recompute()

fillet8 = body27.newObject("PartDesign::Fillet", "Fillet007")
fillet8.Base = (pad27, edges_at(pad27, [(-52, 0, 16), (-52, 10, 16)]))
fillet8.Radius = 4
doc.recompute()

fillet9 = body27.newObject("PartDesign::Fillet", "Fillet008")
fillet9.Base = (fillet8, edges_at(fillet8, [(-45, 0, 0)]))
fillet9.Radius = 2
doc.recompute()

boolean24 = body27.newObject("PartDesign::Boolean", "Boolean023")
boolean24.Type = "Fuse"
boolean24.addObjects([body25])
doc.recompute()

boolean25 = body27.newObject("PartDesign::Boolean", "Boolean024")
boolean25.Type = "Fuse"
boolean25.addObjects([body26])
doc.recompute()

boolean26 = body27.newObject("PartDesign::Boolean", "Boolean025")
boolean26.Type = "Cut"
boolean26.addObjects([body24])

doc.recompute()
